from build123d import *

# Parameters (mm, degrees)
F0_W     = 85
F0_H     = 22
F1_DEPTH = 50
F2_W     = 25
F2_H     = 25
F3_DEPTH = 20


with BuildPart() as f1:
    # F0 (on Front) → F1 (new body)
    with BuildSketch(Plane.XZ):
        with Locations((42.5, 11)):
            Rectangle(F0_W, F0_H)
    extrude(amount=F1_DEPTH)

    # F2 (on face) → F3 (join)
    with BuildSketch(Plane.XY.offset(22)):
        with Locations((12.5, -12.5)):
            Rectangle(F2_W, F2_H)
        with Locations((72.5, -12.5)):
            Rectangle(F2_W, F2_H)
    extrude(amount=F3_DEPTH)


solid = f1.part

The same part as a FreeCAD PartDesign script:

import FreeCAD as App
import Part
import Sketcher
Q = App.Units.Quantity

doc = App.newDocument("Part")
body = doc.addObject("PartDesign::Body", "Body")

# Sketch on XZ plane
sketch1 = body.newObject("Sketcher::SketchObject", "Sketch")
sketch1.AttachmentSupport = (doc.getObject("XZ_Plane"), [""])
sketch1.MapMode = "FlatFace"
sketch1.addGeometry(Part.LineSegment(App.Vector(0, 22, 0), App.Vector(0, 0, 0)), False)
sketch1.addGeometry(Part.LineSegment(App.Vector(0, 0, 0), App.Vector(85, 0, 0)), False)
sketch1.addGeometry(Part.LineSegment(App.Vector(85, 0, 0), App.Vector(85, 22, 0)), False)
sketch1.addGeometry(Part.LineSegment(App.Vector(85, 22, 0), App.Vector(0, 22, 0)), False)
sketch1.addConstraint(Sketcher.Constraint("Coincident", 0, 2, 1, 1))
sketch1.addConstraint(Sketcher.Constraint("Coincident", 1, 2, 2, 1))
sketch1.addConstraint(Sketcher.Constraint("Coincident", 2, 2, 3, 1))
sketch1.addConstraint(Sketcher.Constraint("Coincident", 3, 2, 0, 1))
sketch1.addConstraint(Sketcher.Constraint("Vertical", 0))
sketch1.addConstraint(Sketcher.Constraint("Horizontal", 1))
sketch1.addConstraint(Sketcher.Constraint("Vertical", 2))
sketch1.addConstraint(Sketcher.Constraint("Horizontal", 3))
sketch1.addConstraint(Sketcher.Constraint("Coincident", 0, 2, -1, 1))
sketch1.addConstraint(Sketcher.Constraint("DistanceX", 1, 1, 1, 2, Q("85 mm")))
sketch1.addConstraint(Sketcher.Constraint("DistanceY", 0, 2, 0, 1, Q("22 mm")))
pad1 = body.newObject("PartDesign::Pad", "Pad")
pad1.Profile = sketch1
pad1.Length = 50

# Sketch on XY plane
sketch2 = body.newObject("Sketcher::SketchObject", "Sketch001")
sketch2.AttachmentSupport = (doc.getObject("XY_Plane"), [""])
sketch2.MapMode = "FlatFace"
sketch2.AttachmentOffset = App.Placement(App.Vector(0, 0, 22), App.Rotation())
sketch2.addGeometry(Part.LineSegment(App.Vector(0, 0, 0), App.Vector(0, -25, 0)), False)
sketch2.addGeometry(Part.LineSegment(App.Vector(0, -25, 0), App.Vector(25, -25, 0)), False)
sketch2.addGeometry(Part.LineSegment(App.Vector(25, -25, 0), App.Vector(25, 0, 0)), False)
sketch2.addGeometry(Part.LineSegment(App.Vector(25, 0, 0), App.Vector(0, 0, 0)), False)
sketch2.addGeometry(Part.LineSegment(App.Vector(60, 0, 0), App.Vector(60, -25, 0)), False)
sketch2.addGeometry(Part.LineSegment(App.Vector(60, -25, 0), App.Vector(85, -25, 0)), False)
sketch2.addGeometry(Part.LineSegment(App.Vector(85, -25, 0), App.Vector(85, 0, 0)), False)
sketch2.addGeometry(Part.LineSegment(App.Vector(85, 0, 0), App.Vector(60, 0, 0)), False)
sketch2.addConstraint(Sketcher.Constraint("Coincident", 0, 2, 1, 1))
sketch2.addConstraint(Sketcher.Constraint("Coincident", 1, 2, 2, 1))
sketch2.addConstraint(Sketcher.Constraint("Coincident", 2, 2, 3, 1))
sketch2.addConstraint(Sketcher.Constraint("Coincident", 3, 2, 0, 1))
sketch2.addConstraint(Sketcher.Constraint("Coincident", 4, 2, 5, 1))
sketch2.addConstraint(Sketcher.Constraint("Coincident", 5, 2, 6, 1))
sketch2.addConstraint(Sketcher.Constraint("Coincident", 6, 2, 7, 1))
sketch2.addConstraint(Sketcher.Constraint("Coincident", 7, 2, 4, 1))
sketch2.addConstraint(Sketcher.Constraint("Vertical", 0))
sketch2.addConstraint(Sketcher.Constraint("Horizontal", 1))
sketch2.addConstraint(Sketcher.Constraint("Vertical", 2))
sketch2.addConstraint(Sketcher.Constraint("Horizontal", 3))
sketch2.addConstraint(Sketcher.Constraint("Vertical", 4))
sketch2.addConstraint(Sketcher.Constraint("Horizontal", 5))
sketch2.addConstraint(Sketcher.Constraint("Vertical", 6))
sketch2.addConstraint(Sketcher.Constraint("Horizontal", 7))
sketch2.addConstraint(Sketcher.Constraint("Coincident", 3, 2, -1, 1))
sketch2.addConstraint(Sketcher.Constraint("PointOnObject", 6, 2, -1))
sketch2.addConstraint(Sketcher.Constraint("Horizontal", 1, 2, 4, 2))
sketch2.addConstraint(Sketcher.Constraint("Equal", 3, 5))
sketch2.addConstraint(Sketcher.Constraint("Equal", 7, 0))
sketch2.addConstraint(Sketcher.Constraint("DistanceX", 1, 1, 1, 2, Q("25 mm")))
sketch2.addConstraint(Sketcher.Constraint("DistanceX", -1, 1, 4, 2, Q("60 mm")))
pad2 = body.newObject("PartDesign::Pad", "Pad001")
pad2.Profile = sketch2
pad2.Length = 20

doc.recompute()
